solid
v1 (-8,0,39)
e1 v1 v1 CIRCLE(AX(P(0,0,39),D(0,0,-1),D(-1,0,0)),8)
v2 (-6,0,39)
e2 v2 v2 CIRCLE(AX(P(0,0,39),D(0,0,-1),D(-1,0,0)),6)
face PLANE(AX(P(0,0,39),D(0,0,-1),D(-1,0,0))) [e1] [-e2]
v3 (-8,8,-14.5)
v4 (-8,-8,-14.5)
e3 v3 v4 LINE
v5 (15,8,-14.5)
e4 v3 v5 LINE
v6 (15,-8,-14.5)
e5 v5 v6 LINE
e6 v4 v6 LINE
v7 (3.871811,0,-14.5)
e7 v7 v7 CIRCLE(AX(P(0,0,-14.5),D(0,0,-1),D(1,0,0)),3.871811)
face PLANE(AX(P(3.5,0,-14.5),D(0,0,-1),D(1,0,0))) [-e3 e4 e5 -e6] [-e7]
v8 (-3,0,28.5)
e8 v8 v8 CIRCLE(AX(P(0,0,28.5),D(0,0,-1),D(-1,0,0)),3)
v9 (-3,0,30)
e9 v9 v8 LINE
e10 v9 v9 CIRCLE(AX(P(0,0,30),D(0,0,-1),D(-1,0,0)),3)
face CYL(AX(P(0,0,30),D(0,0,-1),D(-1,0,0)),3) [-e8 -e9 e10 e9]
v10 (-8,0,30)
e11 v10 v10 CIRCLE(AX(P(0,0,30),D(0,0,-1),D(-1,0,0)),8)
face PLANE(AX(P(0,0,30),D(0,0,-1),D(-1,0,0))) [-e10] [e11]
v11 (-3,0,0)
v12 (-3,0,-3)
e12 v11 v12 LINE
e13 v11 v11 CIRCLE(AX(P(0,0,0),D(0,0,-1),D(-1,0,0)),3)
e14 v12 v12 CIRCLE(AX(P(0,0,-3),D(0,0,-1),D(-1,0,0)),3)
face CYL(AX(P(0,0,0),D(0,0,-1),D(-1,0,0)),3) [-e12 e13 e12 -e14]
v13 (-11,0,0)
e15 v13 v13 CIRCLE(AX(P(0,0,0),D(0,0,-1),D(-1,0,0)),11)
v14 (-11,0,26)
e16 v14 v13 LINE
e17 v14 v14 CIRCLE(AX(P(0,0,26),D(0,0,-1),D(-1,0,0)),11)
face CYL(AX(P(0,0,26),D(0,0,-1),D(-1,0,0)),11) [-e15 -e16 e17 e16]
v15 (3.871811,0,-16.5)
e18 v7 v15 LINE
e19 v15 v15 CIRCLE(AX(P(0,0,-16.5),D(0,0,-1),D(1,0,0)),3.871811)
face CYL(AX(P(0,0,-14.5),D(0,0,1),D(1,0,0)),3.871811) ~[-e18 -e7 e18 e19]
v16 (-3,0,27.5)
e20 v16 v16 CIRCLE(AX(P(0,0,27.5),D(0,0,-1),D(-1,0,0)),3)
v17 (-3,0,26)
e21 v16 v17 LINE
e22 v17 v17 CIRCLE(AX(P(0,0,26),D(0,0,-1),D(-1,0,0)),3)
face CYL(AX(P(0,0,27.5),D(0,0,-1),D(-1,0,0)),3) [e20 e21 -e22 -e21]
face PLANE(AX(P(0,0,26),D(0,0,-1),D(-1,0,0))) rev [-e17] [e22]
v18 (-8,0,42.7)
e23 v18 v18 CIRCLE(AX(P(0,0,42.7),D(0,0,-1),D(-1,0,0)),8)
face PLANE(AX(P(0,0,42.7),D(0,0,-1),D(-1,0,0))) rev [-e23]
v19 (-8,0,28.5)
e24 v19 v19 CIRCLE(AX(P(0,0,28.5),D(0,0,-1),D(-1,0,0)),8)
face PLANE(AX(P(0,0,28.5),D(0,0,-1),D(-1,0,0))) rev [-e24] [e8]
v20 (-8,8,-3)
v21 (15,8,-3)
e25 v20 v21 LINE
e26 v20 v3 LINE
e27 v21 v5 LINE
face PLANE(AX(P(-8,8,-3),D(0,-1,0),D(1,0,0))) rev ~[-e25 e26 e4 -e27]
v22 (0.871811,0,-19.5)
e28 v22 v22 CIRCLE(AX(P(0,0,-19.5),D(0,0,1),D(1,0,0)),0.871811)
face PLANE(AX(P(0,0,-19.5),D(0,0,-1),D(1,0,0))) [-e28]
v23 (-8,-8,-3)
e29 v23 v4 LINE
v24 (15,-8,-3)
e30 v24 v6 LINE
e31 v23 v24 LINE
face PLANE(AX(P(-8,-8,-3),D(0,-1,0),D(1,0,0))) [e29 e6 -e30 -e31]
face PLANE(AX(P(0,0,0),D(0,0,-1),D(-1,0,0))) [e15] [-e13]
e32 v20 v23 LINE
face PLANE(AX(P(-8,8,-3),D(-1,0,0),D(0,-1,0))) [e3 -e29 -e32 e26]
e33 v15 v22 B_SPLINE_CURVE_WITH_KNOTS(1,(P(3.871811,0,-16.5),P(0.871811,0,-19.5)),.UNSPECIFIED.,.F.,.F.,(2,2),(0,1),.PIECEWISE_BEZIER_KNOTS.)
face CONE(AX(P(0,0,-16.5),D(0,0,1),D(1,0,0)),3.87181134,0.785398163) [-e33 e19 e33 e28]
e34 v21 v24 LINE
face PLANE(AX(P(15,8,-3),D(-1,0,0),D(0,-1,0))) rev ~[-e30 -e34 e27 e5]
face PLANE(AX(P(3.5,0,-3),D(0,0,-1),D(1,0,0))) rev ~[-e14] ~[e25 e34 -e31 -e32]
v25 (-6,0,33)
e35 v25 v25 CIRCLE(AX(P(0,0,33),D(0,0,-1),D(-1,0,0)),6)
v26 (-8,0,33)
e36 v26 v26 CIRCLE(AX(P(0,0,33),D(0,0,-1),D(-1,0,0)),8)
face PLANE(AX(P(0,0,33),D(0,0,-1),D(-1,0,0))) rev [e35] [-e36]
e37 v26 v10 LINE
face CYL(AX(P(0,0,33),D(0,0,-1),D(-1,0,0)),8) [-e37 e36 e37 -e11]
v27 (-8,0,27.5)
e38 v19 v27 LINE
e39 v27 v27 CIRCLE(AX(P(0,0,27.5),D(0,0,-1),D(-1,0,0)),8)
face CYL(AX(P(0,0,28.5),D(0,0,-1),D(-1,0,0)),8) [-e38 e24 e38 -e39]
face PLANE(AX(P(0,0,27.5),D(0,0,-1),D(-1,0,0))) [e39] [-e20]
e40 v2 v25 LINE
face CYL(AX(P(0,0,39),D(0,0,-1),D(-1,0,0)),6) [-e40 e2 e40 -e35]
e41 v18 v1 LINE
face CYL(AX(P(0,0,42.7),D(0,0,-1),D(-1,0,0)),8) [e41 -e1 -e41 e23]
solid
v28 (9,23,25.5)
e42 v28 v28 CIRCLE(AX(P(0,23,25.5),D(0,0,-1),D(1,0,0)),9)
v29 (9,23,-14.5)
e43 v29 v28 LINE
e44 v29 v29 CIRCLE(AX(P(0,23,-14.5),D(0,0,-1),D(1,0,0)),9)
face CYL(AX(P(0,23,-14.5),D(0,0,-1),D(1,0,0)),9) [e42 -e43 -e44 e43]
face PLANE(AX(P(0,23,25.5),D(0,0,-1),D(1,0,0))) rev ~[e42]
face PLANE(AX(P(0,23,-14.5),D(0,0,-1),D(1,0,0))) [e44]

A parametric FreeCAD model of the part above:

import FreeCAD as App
import Part
import Sketcher
from FreeCAD import Vector
Q = App.Units.Quantity

doc = App.newDocument("Part")
params = doc.addObject("Spreadsheet::Sheet", "Params")
for row, (alias, value) in enumerate([
    ("sketch1_width", "8 mm"),
    ("sketch1_width2", "2 mm"),
    ("sketch1_width3", "5 mm"),
    ("sketch1_height", "6 mm"),
    ("sketch1_height2", "1 mm"),
    ("revolution_angle", "360 deg"),
    ("sketch2_width", "23 mm"),
    ("sketch2_height", "16 mm"),
    ("pad1_length", "11.5 mm"),
    ("pad2_length", "2 mm"),
    ("pad3_length", "3 mm"),
    ("pad3_taper", "-45 deg"),
    ("sketch5_diameter", "18 mm"),
    ("pad4_length", "40 mm"),
], start=1):
    params.set(f"A{row}", alias)
    params.set(f"B{row}", "=" + value)
    params.setAlias(f"B{row}", alias)

body = doc.addObject("PartDesign::Body", "Body")

sketch1 = body.newObject("Sketcher::SketchObject", "Sketch")
sketch1.AttachmentSupport = (doc.getObject("XZ_Plane"), [""])
sketch1.MapMode = "FlatFace"
sketch1.addGeometry(Part.LineSegment(Vector(0, 42.7, 0), Vector(-8, 42.7, 0)), False)
sketch1.addGeometry(Part.LineSegment(Vector(-8, 42.7, 0), Vector(-8, 39, 0)), False)
sketch1.addGeometry(Part.LineSegment(Vector(-8, 39, 0), Vector(-6, 39, 0)), False)
sketch1.addGeometry(Part.LineSegment(Vector(-6, 39, 0), Vector(-6, 33, 0)), False)
sketch1.addGeometry(Part.LineSegment(Vector(-6, 33, 0), Vector(-8, 33, 0)), False)
sketch1.addGeometry(Part.LineSegment(Vector(-8, 33, 0), Vector(-8, 30, 0)), False)
sketch1.addGeometry(Part.LineSegment(Vector(-8, 30, 0), Vector(-3, 30, 0)), False)
sketch1.addGeometry(Part.LineSegment(Vector(-3, 30, 0), Vector(-3, 28.5, 0)), False)
sketch1.addGeometry(Part.LineSegment(Vector(-3, 28.5, 0), Vector(-8, 28.5, 0)), False)
sketch1.addGeometry(Part.LineSegment(Vector(-8, 28.5, 0), Vector(-8, 27.5, 0)), False)
sketch1.addGeometry(Part.LineSegment(Vector(-8, 27.5, 0), Vector(-3, 27.5, 0)), False)
sketch1.addGeometry(Part.LineSegment(Vector(-3, 27.5, 0), Vector(-3, 26, 0)), False)
sketch1.addGeometry(Part.LineSegment(Vector(-3, 26, 0), Vector(-11, 26, 0)), False)
sketch1.addGeometry(Part.LineSegment(Vector(-11, 26, 0), Vector(-11, 0, 0)), False)
sketch1.addGeometry(Part.LineSegment(Vector(-11, 0, 0), Vector(-3, 0, 0)), False)
sketch1.addGeometry(Part.LineSegment(Vector(-3, 0, 0), Vector(-3, -3, 0)), False)
sketch1.addGeometry(Part.LineSegment(Vector(-3, -3, 0), Vector(0, -3, 0)), False)
sketch1.addGeometry(Part.LineSegment(Vector(0, -3, 0), Vector(0, 42.7, 0)), False)
sketch1.addConstraint(Sketcher.Constraint("Coincident", 0, 2, 1, 1))
sketch1.addConstraint(Sketcher.Constraint("Coincident", 1, 2, 2, 1))
sketch1.addConstraint(Sketcher.Constraint("Coincident", 2, 2, 3, 1))
sketch1.addConstraint(Sketcher.Constraint("Coincident", 3, 2, 4, 1))
sketch1.addConstraint(Sketcher.Constraint("Coincident", 4, 2, 5, 1))
sketch1.addConstraint(Sketcher.Constraint("Coincident", 5, 2, 6, 1))
sketch1.addConstraint(Sketcher.Constraint("Coincident", 6, 2, 7, 1))
sketch1.addConstraint(Sketcher.Constraint("Coincident", 7, 2, 8, 1))
sketch1.addConstraint(Sketcher.Constraint("Coincident", 8, 2, 9, 1))
sketch1.addConstraint(Sketcher.Constraint("Coincident", 9, 2, 10, 1))
sketch1.addConstraint(Sketcher.Constraint("Coincident", 10, 2, 11, 1))
sketch1.addConstraint(Sketcher.Constraint("Coincident", 11, 2, 12, 1))
sketch1.addConstraint(Sketcher.Constraint("Coincident", 12, 2, 13, 1))
sketch1.addConstraint(Sketcher.Constraint("Coincident", 13, 2, 14, 1))
sketch1.addConstraint(Sketcher.Constraint("Coincident", 14, 2, 15, 1))
sketch1.addConstraint(Sketcher.Constraint("Coincident", 15, 2, 16, 1))
sketch1.addConstraint(Sketcher.Constraint("Coincident", 16, 2, 17, 1))
sketch1.addConstraint(Sketcher.Constraint("Coincident", 17, 2, 0, 1))
sketch1.addConstraint(Sketcher.Constraint("Horizontal", 0))
sketch1.addConstraint(Sketcher.Constraint("Vertical", 1))
sketch1.addConstraint(Sketcher.Constraint("Horizontal", 2))
sketch1.addConstraint(Sketcher.Constraint("Vertical", 3))
sketch1.addConstraint(Sketcher.Constraint("Horizontal", 4))
sketch1.addConstraint(Sketcher.Constraint("Vertical", 5))
sketch1.addConstraint(Sketcher.Constraint("Horizontal", 6))
sketch1.addConstraint(Sketcher.Constraint("Vertical", 7))
sketch1.addConstraint(Sketcher.Constraint("Horizontal", 8))
sketch1.addConstraint(Sketcher.Constraint("Vertical", 9))
sketch1.addConstraint(Sketcher.Constraint("Horizontal", 10))
sketch1.addConstraint(Sketcher.Constraint("Vertical", 11))
sketch1.addConstraint(Sketcher.Constraint("Horizontal", 12))
sketch1.addConstraint(Sketcher.Constraint("Vertical", 13))
sketch1.addConstraint(Sketcher.Constraint("Horizontal", 14))
sketch1.addConstraint(Sketcher.Constraint("Vertical", 15))
sketch1.addConstraint(Sketcher.Constraint("Horizontal", 16))
sketch1.addConstraint(Sketcher.Constraint("Vertical", 17))
sketch1.addConstraint(Sketcher.Constraint("PointOnObject", 13, 2, -1))
sketch1.addConstraint(Sketcher.Constraint("PointOnObject", 16, 2, -2))
sketch1.addConstraint(Sketcher.Constraint("Vertical", 1, 2, 4, 2))
sketch1.addConstraint(Sketcher.Constraint("Vertical", 5, 2, 8, 2))
sketch1.addConstraint(Sketcher.Constraint("Vertical", 7, 2, 10, 2))
sketch1.addConstraint(Sketcher.Constraint("Vertical", 11, 2, 14, 2))
sketch1.addConstraint(Sketcher.Constraint("Equal", 0, 12))
sketch1.addConstraint(Sketcher.Constraint("Equal", 16, 5))
sketch1.addConstraint(Sketcher.Constraint("Equal", 7, 11))
sketch1.addConstraint(Sketcher.Constraint("Equal", 5, 15))
sketch1.addConstraint(Sketcher.Constraint("DistanceX", 0, 2, 0, 1, Q("8 mm")))
sketch1.addConstraint(Sketcher.Constraint("DistanceX", 2, 1, 2, 2, Q("2 mm")))
sketch1.addConstraint(Sketcher.Constraint("DistanceX", 6, 1, 6, 2, Q("5 mm")))
sketch1.addConstraint(Sketcher.Constraint("DistanceY", 3, 2, 3, 1, Q("6 mm")))
sketch1.addConstraint(Sketcher.Constraint("DistanceY", 9, 2, 9, 1, Q("1 mm")))
sketch1.addConstraint(Sketcher.Constraint("DistanceY", 13, 2, 13, 1, Q("26 mm")))
sketch1.addConstraint(Sketcher.Constraint("DistanceY", 1, 2, 1, 1, Q("3.7 mm")))
sketch1.addConstraint(Sketcher.Constraint("DistanceY", 7, 2, 7, 1, Q("1.5 mm")))
sketch1.setExpression("Constraints[46]", "Params.sketch1_width")
sketch1.setExpression("Constraints[47]", "Params.sketch1_width2")
sketch1.setExpression("Constraints[48]", "Params.sketch1_width3")
sketch1.setExpression("Constraints[49]", "Params.sketch1_height")
sketch1.setExpression("Constraints[50]", "Params.sketch1_height2")
revolution = body.newObject("PartDesign::Revolution", "Revolution")
revolution.Profile = sketch1
revolution.ReferenceAxis = (sketch1, ["V_Axis"])
revolution.setExpression("Angle", "Params.revolution_angle")

sketch2 = body.newObject("Sketcher::SketchObject", "Sketch001")
sketch2.AttachmentSupport = (doc.getObject("XY_Plane"), [""])
sketch2.MapMode = "FlatFace"
sketch2.AttachmentOffset = App.Placement(Vector(0, 0, -3), App.Rotation())
sketch2.addGeometry(Part.LineSegment(Vector(-8, -8, 0), Vector(-8, 8, 0)), False)
sketch2.addGeometry(Part.LineSegment(Vector(-8, 8, 0), Vector(15, 8, 0)), False)
sketch2.addGeometry(Part.LineSegment(Vector(15, 8, 0), Vector(15, -8, 0)), False)
sketch2.addGeometry(Part.LineSegment(Vector(15, -8, 0), Vector(-8, -8, 0)), False)
sketch2.addConstraint(Sketcher.Constraint("Coincident", 0, 2, 1, 1))
sketch2.addConstraint(Sketcher.Constraint("Coincident", 1, 2, 2, 1))
sketch2.addConstraint(Sketcher.Constraint("Coincident", 2, 2, 3, 1))
sketch2.addConstraint(Sketcher.Constraint("Coincident", 3, 2, 0, 1))
sketch2.addConstraint(Sketcher.Constraint("Vertical", 0))
sketch2.addConstraint(Sketcher.Constraint("Horizontal", 1))
sketch2.addConstraint(Sketcher.Constraint("Vertical", 2))
sketch2.addConstraint(Sketcher.Constraint("Horizontal", 3))
sketch2.addConstraint(Sketcher.Constraint("DistanceX", 1, 1, 1, 2, Q("23 mm")))
sketch2.addConstraint(Sketcher.Constraint("DistanceY", 0, 1, 0, 2, Q("16 mm")))
sketch2.addConstraint(Sketcher.Constraint("DistanceX", 0, 2, -1, 1, Q("8 mm")))
sketch2.addConstraint(Sketcher.Constraint("DistanceY", -1, 1, 0, 2, Q("8 mm")))
sketch2.setExpression("Constraints[8]", "Params.sketch2_width")
sketch2.setExpression("Constraints[9]", "Params.sketch2_height")
pad1 = body.newObject("PartDesign::Pad", "Pad")
pad1.Profile = sketch2
pad1.setExpression("Length", "Params.pad1_length")
pad1.Reversed = True

sketch3 = body.newObject("Sketcher::SketchObject", "Sketch002")
sketch3.AttachmentSupport = (doc.getObject("XY_Plane"), [""])
sketch3.MapMode = "FlatFace"
sketch3.AttachmentOffset = App.Placement(Vector(0, 0, -14.5), App.Rotation())
sketch3.addGeometry(Part.Circle(Vector(0, 0, 0), Vector(0, 0, 1), 3.9), False)
sketch3.addConstraint(Sketcher.Constraint("Coincident", 0, 3, -1, 1))
sketch3.addConstraint(Sketcher.Constraint("Diameter", 0, Q("7.743623 mm")))
pad2 = body.newObject("PartDesign::Pad", "Pad001")
pad2.Profile = sketch3
pad2.setExpression("Length", "Params.pad2_length")
pad2.Reversed = True

sketch4 = body.newObject("Sketcher::SketchObject", "Sketch003")
sketch4.AttachmentSupport = (doc.getObject("XY_Plane"), [""])
sketch4.MapMode = "FlatFace"
sketch4.AttachmentOffset = App.Placement(Vector(0, 0, -16.5), App.Rotation())
sketch4.addGeometry(Part.Circle(Vector(0, 0, 0), Vector(0, 0, 1), 3.9), False)
sketch4.addConstraint(Sketcher.Constraint("Coincident", 0, 3, -1, 1))
sketch4.addConstraint(Sketcher.Constraint("Diameter", 0, Q("7.743623 mm")))
pad3 = body.newObject("PartDesign::Pad", "Pad002")
pad3.Profile = sketch4
pad3.setExpression("Length", "Params.pad3_length")
pad3.Reversed = True
pad3.setExpression("TaperAngle", "Params.pad3_taper")
body2 = doc.addObject("PartDesign::Body", "Body001")

sketch5 = body2.newObject("Sketcher::SketchObject", "Sketch004")
sketch5.AttachmentSupport = (doc.getObject("XY_Plane001"), [""])
sketch5.MapMode = "FlatFace"
sketch5.AttachmentOffset = App.Placement(Vector(0, 0, -14.5), App.Rotation())
sketch5.addGeometry(Part.Circle(Vector(0, 23, 0), Vector(0, 0, 1), 9), False)
sketch5.addConstraint(Sketcher.Constraint("PointOnObject", 0, 3, -2))
sketch5.addConstraint(Sketcher.Constraint("Diameter", 0, Q("18 mm")))
sketch5.addConstraint(Sketcher.Constraint("DistanceY", -1, 1, 0, 3, Q("23 mm")))
sketch5.setExpression("Constraints[1]", "Params.sketch5_diameter")
pad4 = body2.newObject("PartDesign::Pad", "Pad003")
pad4.Profile = sketch5
pad4.setExpression("Length", "Params.pad4_length")

doc.recompute()
